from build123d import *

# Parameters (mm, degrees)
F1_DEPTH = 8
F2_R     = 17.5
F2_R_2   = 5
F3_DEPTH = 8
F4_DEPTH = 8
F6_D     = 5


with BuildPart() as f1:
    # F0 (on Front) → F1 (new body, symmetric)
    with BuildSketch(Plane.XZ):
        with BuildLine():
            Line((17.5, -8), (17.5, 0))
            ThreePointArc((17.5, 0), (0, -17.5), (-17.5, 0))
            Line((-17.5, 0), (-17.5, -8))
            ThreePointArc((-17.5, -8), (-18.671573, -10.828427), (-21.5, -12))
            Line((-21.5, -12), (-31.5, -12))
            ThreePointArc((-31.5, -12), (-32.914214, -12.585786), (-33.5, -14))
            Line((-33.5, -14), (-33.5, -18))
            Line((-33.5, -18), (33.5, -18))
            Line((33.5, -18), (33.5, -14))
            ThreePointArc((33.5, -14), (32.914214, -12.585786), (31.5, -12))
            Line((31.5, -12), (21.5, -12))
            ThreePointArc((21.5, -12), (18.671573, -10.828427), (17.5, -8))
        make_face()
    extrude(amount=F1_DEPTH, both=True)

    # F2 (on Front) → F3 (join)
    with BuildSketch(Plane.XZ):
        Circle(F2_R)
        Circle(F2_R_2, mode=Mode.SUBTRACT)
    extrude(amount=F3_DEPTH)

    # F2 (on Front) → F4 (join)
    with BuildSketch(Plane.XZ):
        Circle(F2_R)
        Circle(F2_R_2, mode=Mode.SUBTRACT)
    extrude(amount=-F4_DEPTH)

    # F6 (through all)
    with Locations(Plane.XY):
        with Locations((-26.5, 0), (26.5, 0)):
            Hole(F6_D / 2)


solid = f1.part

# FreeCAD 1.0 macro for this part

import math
import FreeCAD as App
import Part
import Sketcher

doc = App.newDocument("Part")
body = doc.addObject("PartDesign::Body", "Body")

# Sketch on XZ plane
sketch1 = body.newObject("Sketcher::SketchObject", "Sketch")
sketch1.AttachmentSupport = (doc.getObject("XZ_Plane"), [""])
sketch1.MapMode = "FlatFace"
sketch1.addGeometry(Part.LineSegment(App.Vector(17.5, -8, 0), App.Vector(17.5, 0, 0)), False)
sketch1.addGeometry(Part.ArcOfCircle(Part.Circle(App.Vector(0, 0, 0), App.Vector(0, 0, 1), 17.5), math.radians(180), math.radians(360)), False)
sketch1.addGeometry(Part.LineSegment(App.Vector(-17.5, 0, 0), App.Vector(-17.5, -8, 0)), False)
sketch1.addGeometry(Part.ArcOfCircle(Part.Circle(App.Vector(-21.5, -8, 0), App.Vector(0, 0, 1), 4), math.radians(-90), math.radians(0)), False)
sketch1.addGeometry(Part.LineSegment(App.Vector(-21.5, -12, 0), App.Vector(-31.5, -12, 0)), False)
sketch1.addGeometry(Part.ArcOfCircle(Part.Circle(App.Vector(-31.5, -14, 0), App.Vector(0, 0, 1), 2), math.radians(90), math.radians(180)), False)
sketch1.addGeometry(Part.LineSegment(App.Vector(-33.5, -14, 0), App.Vector(-33.5, -18, 0)), False)
sketch1.addGeometry(Part.LineSegment(App.Vector(-33.5, -18, 0), App.Vector(33.5, -18, 0)), False)
sketch1.addGeometry(Part.LineSegment(App.Vector(33.5, -18, 0), App.Vector(33.5, -14, 0)), False)
sketch1.addGeometry(Part.ArcOfCircle(Part.Circle(App.Vector(31.5, -14, 0), App.Vector(0, 0, 1), 2), math.radians(0), math.radians(90)), False)
sketch1.addGeometry(Part.LineSegment(App.Vector(31.5, -12, 0), App.Vector(21.5, -12, 0)), False)
sketch1.addGeometry(Part.ArcOfCircle(Part.Circle(App.Vector(21.5, -8, 0), App.Vector(0, 0, 1), 4), math.radians(-180), math.radians(-90)), False)
sketch1.addConstraint(Sketcher.Constraint("Tangent", 0, 2, 1, 2))
sketch1.addConstraint(Sketcher.Constraint("Tangent", 1, 1, 2, 1))
sketch1.addConstraint(Sketcher.Constraint("Tangent", 2, 2, 3, 2))
sketch1.addConstraint(Sketcher.Constraint("Tangent", 3, 1, 4, 1))
sketch1.addConstraint(Sketcher.Constraint("Tangent", 4, 2, 5, 1))
sketch1.addConstraint(Sketcher.Constraint("Tangent", 5, 2, 6, 1))
sketch1.addConstraint(Sketcher.Constraint("Coincident", 6, 2, 7, 1))
sketch1.addConstraint(Sketcher.Constraint("Coincident", 7, 2, 8, 1))
sketch1.addConstraint(Sketcher.Constraint("Tangent", 8, 2, 9, 1))
sketch1.addConstraint(Sketcher.Constraint("Tangent", 9, 2, 10, 1))
sketch1.addConstraint(Sketcher.Constraint("Tangent", 10, 2, 11, 2))
sketch1.addConstraint(Sketcher.Constraint("Tangent", 11, 1, 0, 1))
sketch1.addConstraint(Sketcher.Constraint("Vertical", 0))
sketch1.addConstraint(Sketcher.Constraint("Vertical", 2))
sketch1.addConstraint(Sketcher.Constraint("Horizontal", 4))
sketch1.addConstraint(Sketcher.Constraint("Vertical", 6))
sketch1.addConstraint(Sketcher.Constraint("Horizontal", 7))
sketch1.addConstraint(Sketcher.Constraint("Vertical", 8))
sketch1.addConstraint(Sketcher.Constraint("Horizontal", 10))
sketch1.addConstraint(Sketcher.Constraint("Coincident", 1, 3, -1, 1))
sketch1.addConstraint(Sketcher.Constraint("Equal", 5, 9))
sketch1.addConstraint(Sketcher.Constraint("Equal", 3, 11))
sketch1.addConstraint(Sketcher.Constraint("Symmetric", 5, 3, 9, 3, -2))
sketch1.addConstraint(Sketcher.Constraint("Radius", 3, 4.0))
sketch1.addConstraint(Sketcher.Constraint("Radius", 5, 1.999999))
sketch1.addConstraint(Sketcher.Constraint("Radius", 1, 17.5))
sketch1.addConstraint(Sketcher.Constraint("DistanceX", 4, 2, 4, 1, 10.0))
sketch1.addConstraint(Sketcher.Constraint("DistanceY", 0, 1, 0, 2, 8.0))
sketch1.addConstraint(Sketcher.Constraint("DistanceY", 6, 2, 6, 1, 4.0))
pad1 = body.newObject("PartDesign::Pad", "Pad")
pad1.Profile = sketch1
pad1.Length = 16
pad1.Midplane = True

# Sketch on XZ plane
sketch2 = body.newObject("Sketcher::SketchObject", "Sketch001")
sketch2.AttachmentSupport = (doc.getObject("XZ_Plane"), [""])
sketch2.MapMode = "FlatFace"
sketch2.addGeometry(Part.Circle(App.Vector(0, 0, 0), App.Vector(0, 0, 1), 18), False)
sketch2.addGeometry(Part.Circle(App.Vector(0, 0, 0), App.Vector(0, 0, 1), 5), False)
sketch2.addConstraint(Sketcher.Constraint("Coincident", 0, 3, -1, 1))
sketch2.addConstraint(Sketcher.Constraint("Coincident", 1, 3, -1, 1))
sketch2.addConstraint(Sketcher.Constraint("Diameter", 0, 35.0))
sketch2.addConstraint(Sketcher.Constraint("Diameter", 1, 10.0))
pad2 = body.newObject("PartDesign::Pad", "Pad001")
pad2.Profile = sketch2
pad2.Length = 8

# Sketch on XZ plane
sketch3 = body.newObject("Sketcher::SketchObject", "Sketch002")
sketch3.AttachmentSupport = (doc.getObject("XZ_Plane"), [""])
sketch3.MapMode = "FlatFace"
sketch3.addGeometry(Part.Circle(App.Vector(0, 0, 0), App.Vector(0, 0, 1), 18), False)
sketch3.addGeometry(Part.Circle(App.Vector(0, 0, 0), App.Vector(0, 0, 1), 5), False)
sketch3.addConstraint(Sketcher.Constraint("Coincident", 0, 3, -1, 1))
sketch3.addConstraint(Sketcher.Constraint("Coincident", 1, 3, -1, 1))
sketch3.addConstraint(Sketcher.Constraint("Diameter", 0, 35.0))
sketch3.addConstraint(Sketcher.Constraint("Diameter", 1, 10.0))
pad3 = body.newObject("PartDesign::Pad", "Pad002")
pad3.Profile = sketch3
pad3.Length = 8
pad3.Reversed = True

# Sketch on XY plane
sketch4 = body.newObject("Sketcher::SketchObject", "Sketch003")
sketch4.AttachmentSupport = (doc.getObject("XY_Plane"), [""])
sketch4.MapMode = "FlatFace"
sketch4.addGeometry(Part.Circle(App.Vector(-26.5, 0, 0), App.Vector(0, 0, 1), 2.5), False)
sketch4.addGeometry(Part.Circle(App.Vector(26.5, 0, 0), App.Vector(0, 0, 1), 2.5), False)
sketch4.addConstraint(Sketcher.Constraint("Equal", 0, 1))
sketch4.addConstraint(Sketcher.Constraint("Symmetric", 0, 3, 1, 3, -1, 1))
sketch4.addConstraint(Sketcher.Constraint("PointOnObject", 0, 3, -1))
sketch4.addConstraint(Sketcher.Constraint("Diameter", 0, 5.0))
sketch4.addConstraint(Sketcher.Constraint("DistanceX", 0, 3, 1, 3, 53.0))
doc.recompute()
hole = body.newObject("PartDesign::Hole", "Hole")
hole.Profile = sketch4
hole.ThreadType = "None"
hole.Diameter = 5
hole.DepthType = "ThroughAll"

doc.recompute()
